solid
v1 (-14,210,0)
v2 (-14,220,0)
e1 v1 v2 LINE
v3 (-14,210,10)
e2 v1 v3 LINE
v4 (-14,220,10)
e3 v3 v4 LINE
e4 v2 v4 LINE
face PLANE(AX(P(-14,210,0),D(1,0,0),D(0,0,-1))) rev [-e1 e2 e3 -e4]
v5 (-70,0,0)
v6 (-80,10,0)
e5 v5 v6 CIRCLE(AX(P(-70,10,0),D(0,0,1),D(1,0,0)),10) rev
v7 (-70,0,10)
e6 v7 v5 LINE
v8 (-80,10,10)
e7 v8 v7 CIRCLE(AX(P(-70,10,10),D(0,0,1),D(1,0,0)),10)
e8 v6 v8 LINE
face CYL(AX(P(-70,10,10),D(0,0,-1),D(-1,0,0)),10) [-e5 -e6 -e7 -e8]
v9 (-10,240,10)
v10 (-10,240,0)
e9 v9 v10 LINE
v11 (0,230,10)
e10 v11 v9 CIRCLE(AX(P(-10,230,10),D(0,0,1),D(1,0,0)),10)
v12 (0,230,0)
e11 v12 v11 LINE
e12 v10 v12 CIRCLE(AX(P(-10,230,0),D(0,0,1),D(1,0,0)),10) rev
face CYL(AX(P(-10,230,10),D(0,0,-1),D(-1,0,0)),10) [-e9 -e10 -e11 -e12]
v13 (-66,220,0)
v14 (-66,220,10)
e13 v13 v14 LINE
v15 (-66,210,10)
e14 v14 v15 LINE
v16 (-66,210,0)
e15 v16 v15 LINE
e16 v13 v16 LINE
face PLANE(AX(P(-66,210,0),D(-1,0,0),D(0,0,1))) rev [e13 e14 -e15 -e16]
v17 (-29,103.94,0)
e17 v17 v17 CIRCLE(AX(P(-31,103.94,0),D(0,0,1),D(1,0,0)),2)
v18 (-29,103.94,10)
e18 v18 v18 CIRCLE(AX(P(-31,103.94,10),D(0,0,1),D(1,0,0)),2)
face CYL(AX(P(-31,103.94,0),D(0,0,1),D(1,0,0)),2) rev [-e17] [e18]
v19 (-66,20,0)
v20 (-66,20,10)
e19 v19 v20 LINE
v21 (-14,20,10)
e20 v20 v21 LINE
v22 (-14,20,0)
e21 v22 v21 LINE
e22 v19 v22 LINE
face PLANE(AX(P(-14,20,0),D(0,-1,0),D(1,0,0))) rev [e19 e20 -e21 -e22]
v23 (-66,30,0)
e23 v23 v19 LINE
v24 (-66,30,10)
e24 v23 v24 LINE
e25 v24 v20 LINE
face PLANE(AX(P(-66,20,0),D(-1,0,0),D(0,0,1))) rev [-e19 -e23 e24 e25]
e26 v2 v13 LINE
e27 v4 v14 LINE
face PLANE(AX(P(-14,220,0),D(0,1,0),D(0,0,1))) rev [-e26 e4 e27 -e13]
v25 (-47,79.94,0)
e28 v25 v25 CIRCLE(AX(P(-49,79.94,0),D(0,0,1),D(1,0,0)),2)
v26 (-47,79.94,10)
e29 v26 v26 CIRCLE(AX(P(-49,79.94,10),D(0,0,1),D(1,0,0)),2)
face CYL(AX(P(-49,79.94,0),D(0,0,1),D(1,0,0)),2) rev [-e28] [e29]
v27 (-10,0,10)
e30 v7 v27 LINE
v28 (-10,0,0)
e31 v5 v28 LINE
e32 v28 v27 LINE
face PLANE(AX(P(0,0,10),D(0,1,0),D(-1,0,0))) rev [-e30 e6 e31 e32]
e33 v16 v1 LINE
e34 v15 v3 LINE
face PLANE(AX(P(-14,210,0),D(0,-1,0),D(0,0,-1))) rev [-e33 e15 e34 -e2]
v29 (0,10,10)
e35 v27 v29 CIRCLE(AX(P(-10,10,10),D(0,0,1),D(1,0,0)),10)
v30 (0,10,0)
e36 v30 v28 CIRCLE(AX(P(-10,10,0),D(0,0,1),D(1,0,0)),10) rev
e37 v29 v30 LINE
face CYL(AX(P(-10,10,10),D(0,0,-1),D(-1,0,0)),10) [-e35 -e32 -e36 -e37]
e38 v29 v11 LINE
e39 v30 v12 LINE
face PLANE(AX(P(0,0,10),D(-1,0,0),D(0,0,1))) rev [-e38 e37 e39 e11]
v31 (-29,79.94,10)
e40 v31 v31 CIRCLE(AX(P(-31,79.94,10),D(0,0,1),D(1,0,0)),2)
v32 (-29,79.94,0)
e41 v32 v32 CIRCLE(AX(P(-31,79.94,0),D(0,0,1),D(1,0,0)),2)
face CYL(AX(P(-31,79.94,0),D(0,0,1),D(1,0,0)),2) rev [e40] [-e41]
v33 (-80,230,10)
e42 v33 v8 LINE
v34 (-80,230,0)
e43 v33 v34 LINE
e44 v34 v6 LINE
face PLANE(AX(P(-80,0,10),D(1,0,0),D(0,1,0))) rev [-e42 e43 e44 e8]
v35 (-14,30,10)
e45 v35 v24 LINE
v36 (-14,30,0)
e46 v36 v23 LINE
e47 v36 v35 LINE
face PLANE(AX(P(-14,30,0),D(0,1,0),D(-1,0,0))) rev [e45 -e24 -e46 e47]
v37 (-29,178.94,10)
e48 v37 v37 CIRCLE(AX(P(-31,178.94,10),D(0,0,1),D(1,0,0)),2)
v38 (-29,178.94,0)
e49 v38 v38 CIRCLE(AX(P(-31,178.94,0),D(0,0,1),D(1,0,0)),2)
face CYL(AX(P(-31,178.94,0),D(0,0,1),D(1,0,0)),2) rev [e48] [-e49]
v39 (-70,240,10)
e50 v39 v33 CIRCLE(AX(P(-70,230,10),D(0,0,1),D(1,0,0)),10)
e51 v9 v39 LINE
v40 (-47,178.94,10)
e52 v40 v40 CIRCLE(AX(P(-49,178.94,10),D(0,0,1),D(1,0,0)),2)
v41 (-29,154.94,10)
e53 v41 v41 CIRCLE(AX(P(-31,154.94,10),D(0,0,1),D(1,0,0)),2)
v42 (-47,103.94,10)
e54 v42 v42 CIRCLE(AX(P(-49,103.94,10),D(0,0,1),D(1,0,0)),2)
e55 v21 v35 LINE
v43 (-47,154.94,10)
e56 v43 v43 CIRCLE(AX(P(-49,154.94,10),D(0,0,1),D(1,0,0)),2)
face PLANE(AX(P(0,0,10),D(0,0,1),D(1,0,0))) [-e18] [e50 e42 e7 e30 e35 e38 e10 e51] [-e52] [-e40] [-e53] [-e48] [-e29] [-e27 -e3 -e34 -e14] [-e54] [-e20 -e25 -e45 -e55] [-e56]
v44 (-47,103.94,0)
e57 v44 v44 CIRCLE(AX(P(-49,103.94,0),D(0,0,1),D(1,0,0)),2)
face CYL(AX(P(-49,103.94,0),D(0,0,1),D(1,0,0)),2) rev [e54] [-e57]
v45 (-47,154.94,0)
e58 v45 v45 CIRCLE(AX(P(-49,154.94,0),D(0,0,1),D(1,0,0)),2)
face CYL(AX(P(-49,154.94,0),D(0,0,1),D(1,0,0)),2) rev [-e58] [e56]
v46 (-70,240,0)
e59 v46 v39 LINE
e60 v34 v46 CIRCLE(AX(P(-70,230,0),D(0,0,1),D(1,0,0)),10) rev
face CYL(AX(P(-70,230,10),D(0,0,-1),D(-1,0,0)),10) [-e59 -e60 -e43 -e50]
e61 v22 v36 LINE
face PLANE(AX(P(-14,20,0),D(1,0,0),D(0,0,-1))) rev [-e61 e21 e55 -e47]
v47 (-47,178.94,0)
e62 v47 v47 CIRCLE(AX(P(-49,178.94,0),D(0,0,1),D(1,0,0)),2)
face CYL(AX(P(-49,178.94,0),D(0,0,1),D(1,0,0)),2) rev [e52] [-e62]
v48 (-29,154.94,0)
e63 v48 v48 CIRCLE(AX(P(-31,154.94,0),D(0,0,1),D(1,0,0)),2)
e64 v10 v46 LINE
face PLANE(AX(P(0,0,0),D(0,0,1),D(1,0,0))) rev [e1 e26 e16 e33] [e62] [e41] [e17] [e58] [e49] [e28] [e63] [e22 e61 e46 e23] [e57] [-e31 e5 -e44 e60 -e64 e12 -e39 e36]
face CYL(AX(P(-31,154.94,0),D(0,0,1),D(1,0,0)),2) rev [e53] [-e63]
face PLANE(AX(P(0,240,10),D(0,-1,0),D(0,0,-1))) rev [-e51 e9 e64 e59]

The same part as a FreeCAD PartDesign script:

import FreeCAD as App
import Part
import Sketcher

V = App.Vector


def edges_at(feature, points):
    """Names of the edges that pass closest to the given points."""
    edges = feature.Shape.Edges
    near = lambda p: min(range(len(edges)), key=lambda i: edges[i].distToShape(Part.Vertex(*p))[0])
    return sorted({f"Edge{near(p) + 1}" for p in points})

doc = App.newDocument("Part")
body = doc.addObject("PartDesign::Body", "Body")

# Sketch on XY plane
sketch1 = doc.addObject("Sketcher::SketchObject", "Sketch")
body.addObject(sketch1)
sketch1.AttachmentSupport = (doc.XY_Plane, [""])
sketch1.MapMode = "FlatFace"
sketch1.addGeometry([
    Part.LineSegment(V(-80, 240, 0), V(-80, 0, 0)),
    Part.LineSegment(V(-80, 0, 0), V(0, 0, 0)),
    Part.LineSegment(V(0, 0, 0), V(0, 240, 0)),
    Part.LineSegment(V(0, 240, 0), V(-80, 240, 0)),
], False)
sketch1.addConstraint([
    Sketcher.Constraint("Coincident", 0, 2, 1, 1),
    Sketcher.Constraint("Coincident", 1, 2, 2, 1),
    Sketcher.Constraint("Coincident", 2, 2, 3, 1),
    Sketcher.Constraint("Coincident", 3, 2, 0, 1),
    Sketcher.Constraint("Vertical", 0),
    Sketcher.Constraint("Horizontal", 1),
    Sketcher.Constraint("Vertical", 2),
    Sketcher.Constraint("Horizontal", 3),
    Sketcher.Constraint("Coincident", 1, 2, -1, 1),
    Sketcher.Constraint("DistanceX", 1, 1, 1, 2, 80.0),
    Sketcher.Constraint("DistanceY", 0, 2, 0, 1, 240.0),
])
pad1 = doc.addObject("PartDesign::Pad", "Pad")
body.addObject(pad1)
pad1.Profile = sketch1
pad1.Length = 10
doc.recompute()

fillet = doc.addObject("PartDesign::Fillet", "Fillet")
body.addObject(fillet)
fillet.Base = (pad1, edges_at(pad1, [
    (0, 0, 5),
    (-80, 0, 5),
    (-80, 240, 5),
    (0, 240, 5),
]))
fillet.Radius = 10

# Sketch on XY plane
sketch2 = doc.addObject("Sketcher::SketchObject", "Sketch001")
body.addObject(sketch2)
sketch2.AttachmentSupport = (doc.XY_Plane, [""])
sketch2.MapMode = "FlatFace"
sketch2.AttachmentOffset = App.Placement(V(0, 0, 10), App.Rotation())
sketch2.addGeometry([
    Part.Circle(V(-49, 154.9, 0), V(0, 0, 1), 2),  # 0
    Part.Circle(V(-31, 154.9, 0), V(0, 0, 1), 2),  # 1
    Part.Circle(V(-31, 178.9, 0), V(0, 0, 1), 2),  # 2
    Part.Circle(V(-49, 178.9, 0), V(0, 0, 1), 2),  # 3
    Part.Circle(V(-49, 103.9, 0), V(0, 0, 1), 2),  # 4
    Part.Circle(V(-49, 79.9, 0), V(0, 0, 1), 2),  # 5
    Part.Circle(V(-31, 103.9, 0), V(0, 0, 1), 2),  # 6
    Part.Circle(V(-31, 79.9, 0), V(0, 0, 1), 2),  # 7
    Part.LineSegment(V(-66, 220, 0), V(-66, 210, 0)),  # 8
    Part.LineSegment(V(-66, 210, 0), V(-14, 210, 0)),  # 9
    Part.LineSegment(V(-14, 210, 0), V(-14, 220, 0)),  # 10
    Part.LineSegment(V(-14, 220, 0), V(-66, 220, 0)),  # 11
    Part.LineSegment(V(-66, 30, 0), V(-66, 20, 0)),  # 12
    Part.LineSegment(V(-66, 20, 0), V(-14, 20, 0)),  # 13
    Part.LineSegment(V(-14, 20, 0), V(-14, 30, 0)),  # 14
    Part.LineSegment(V(-14, 30, 0), V(-66, 30, 0)),  # 15
], False)
sketch2.addConstraint([
    Sketcher.Constraint("Coincident", 8, 2, 9, 1),
    Sketcher.Constraint("Coincident", 9, 2, 10, 1),
    Sketcher.Constraint("Coincident", 10, 2, 11, 1),
    Sketcher.Constraint("Coincident", 11, 2, 8, 1),
    Sketcher.Constraint("Coincident", 12, 2, 13, 1),
    Sketcher.Constraint("Coincident", 13, 2, 14, 1),
    Sketcher.Constraint("Coincident", 14, 2, 15, 1),
    Sketcher.Constraint("Coincident", 15, 2, 12, 1),
    Sketcher.Constraint("Vertical", 8),
    Sketcher.Constraint("Horizontal", 9),
    Sketcher.Constraint("Vertical", 10),
    Sketcher.Constraint("Horizontal", 11),
    Sketcher.Constraint("Vertical", 12),
    Sketcher.Constraint("Horizontal", 13),
    Sketcher.Constraint("Vertical", 14),
    Sketcher.Constraint("Horizontal", 15),
    Sketcher.Constraint("Equal", 0, 1),
    Sketcher.Constraint("Equal", 1, 2),
    Sketcher.Constraint("Equal", 2, 3),
    Sketcher.Constraint("Equal", 3, 4),
    Sketcher.Constraint("Equal", 4, 5),
    Sketcher.Constraint("Equal", 5, 6),
    Sketcher.Constraint("Equal", 6, 7),
    Sketcher.Constraint("Horizontal", 0, 3, 1, 3),
    Sketcher.Constraint("Horizontal", 2, 3, 3, 3),
    Sketcher.Constraint("Horizontal", 4, 3, 6, 3),
    Sketcher.Constraint("Horizontal", 5, 3, 7, 3),
    Sketcher.Constraint("Vertical", 1, 3, 2, 3),
    Sketcher.Constraint("Vertical", 0, 3, 3, 3),
    Sketcher.Constraint("Vertical", 3, 3, 4, 3),
    Sketcher.Constraint("Vertical", 4, 3, 5, 3),
    Sketcher.Constraint("Vertical", 2, 3, 6, 3),
    Sketcher.Constraint("Vertical", 6, 3, 7, 3),
    Sketcher.Constraint("Vertical", 11, 2, 12, 2),
    Sketcher.Constraint("Vertical", 10, 2, 13, 2),
    Sketcher.Constraint("Equal", 10, 12),
    Sketcher.Constraint("Diameter", 0, 4.0),
    Sketcher.Constraint("DistanceX", 9, 1, 9, 2, 52.0),
    Sketcher.Constraint("DistanceY", 8, 2, 8, 1, 10.0),
    Sketcher.Constraint("DistanceX", 0, 3, -1, 1, 49.0),
    Sketcher.Constraint("DistanceX", 1, 3, -1, 1, 31.0),
    Sketcher.Constraint("DistanceX", 8, 2, -1, 1, 66.0),
    Sketcher.Constraint("DistanceY", -1, 1, 8, 2, 210.0),
    Sketcher.Constraint("DistanceY", -1, 1, 12, 2, 20.0),
    Sketcher.Constraint("DistanceY", 1, 3, 2, 3, 24.0),
    Sketcher.Constraint("DistanceY", 4, 3, 0, 3, 51.0),
    Sketcher.Constraint("DistanceY", 5, 3, 4, 3, 24.0),
    Sketcher.Constraint("DistanceY", -1, 1, 0, 3, 154.94),
])
pocket1 = doc.addObject("PartDesign::Pocket", "Pocket")
body.addObject(pocket1)
pocket1.Profile = sketch2
pocket1.Length = 10

doc.recompute()
